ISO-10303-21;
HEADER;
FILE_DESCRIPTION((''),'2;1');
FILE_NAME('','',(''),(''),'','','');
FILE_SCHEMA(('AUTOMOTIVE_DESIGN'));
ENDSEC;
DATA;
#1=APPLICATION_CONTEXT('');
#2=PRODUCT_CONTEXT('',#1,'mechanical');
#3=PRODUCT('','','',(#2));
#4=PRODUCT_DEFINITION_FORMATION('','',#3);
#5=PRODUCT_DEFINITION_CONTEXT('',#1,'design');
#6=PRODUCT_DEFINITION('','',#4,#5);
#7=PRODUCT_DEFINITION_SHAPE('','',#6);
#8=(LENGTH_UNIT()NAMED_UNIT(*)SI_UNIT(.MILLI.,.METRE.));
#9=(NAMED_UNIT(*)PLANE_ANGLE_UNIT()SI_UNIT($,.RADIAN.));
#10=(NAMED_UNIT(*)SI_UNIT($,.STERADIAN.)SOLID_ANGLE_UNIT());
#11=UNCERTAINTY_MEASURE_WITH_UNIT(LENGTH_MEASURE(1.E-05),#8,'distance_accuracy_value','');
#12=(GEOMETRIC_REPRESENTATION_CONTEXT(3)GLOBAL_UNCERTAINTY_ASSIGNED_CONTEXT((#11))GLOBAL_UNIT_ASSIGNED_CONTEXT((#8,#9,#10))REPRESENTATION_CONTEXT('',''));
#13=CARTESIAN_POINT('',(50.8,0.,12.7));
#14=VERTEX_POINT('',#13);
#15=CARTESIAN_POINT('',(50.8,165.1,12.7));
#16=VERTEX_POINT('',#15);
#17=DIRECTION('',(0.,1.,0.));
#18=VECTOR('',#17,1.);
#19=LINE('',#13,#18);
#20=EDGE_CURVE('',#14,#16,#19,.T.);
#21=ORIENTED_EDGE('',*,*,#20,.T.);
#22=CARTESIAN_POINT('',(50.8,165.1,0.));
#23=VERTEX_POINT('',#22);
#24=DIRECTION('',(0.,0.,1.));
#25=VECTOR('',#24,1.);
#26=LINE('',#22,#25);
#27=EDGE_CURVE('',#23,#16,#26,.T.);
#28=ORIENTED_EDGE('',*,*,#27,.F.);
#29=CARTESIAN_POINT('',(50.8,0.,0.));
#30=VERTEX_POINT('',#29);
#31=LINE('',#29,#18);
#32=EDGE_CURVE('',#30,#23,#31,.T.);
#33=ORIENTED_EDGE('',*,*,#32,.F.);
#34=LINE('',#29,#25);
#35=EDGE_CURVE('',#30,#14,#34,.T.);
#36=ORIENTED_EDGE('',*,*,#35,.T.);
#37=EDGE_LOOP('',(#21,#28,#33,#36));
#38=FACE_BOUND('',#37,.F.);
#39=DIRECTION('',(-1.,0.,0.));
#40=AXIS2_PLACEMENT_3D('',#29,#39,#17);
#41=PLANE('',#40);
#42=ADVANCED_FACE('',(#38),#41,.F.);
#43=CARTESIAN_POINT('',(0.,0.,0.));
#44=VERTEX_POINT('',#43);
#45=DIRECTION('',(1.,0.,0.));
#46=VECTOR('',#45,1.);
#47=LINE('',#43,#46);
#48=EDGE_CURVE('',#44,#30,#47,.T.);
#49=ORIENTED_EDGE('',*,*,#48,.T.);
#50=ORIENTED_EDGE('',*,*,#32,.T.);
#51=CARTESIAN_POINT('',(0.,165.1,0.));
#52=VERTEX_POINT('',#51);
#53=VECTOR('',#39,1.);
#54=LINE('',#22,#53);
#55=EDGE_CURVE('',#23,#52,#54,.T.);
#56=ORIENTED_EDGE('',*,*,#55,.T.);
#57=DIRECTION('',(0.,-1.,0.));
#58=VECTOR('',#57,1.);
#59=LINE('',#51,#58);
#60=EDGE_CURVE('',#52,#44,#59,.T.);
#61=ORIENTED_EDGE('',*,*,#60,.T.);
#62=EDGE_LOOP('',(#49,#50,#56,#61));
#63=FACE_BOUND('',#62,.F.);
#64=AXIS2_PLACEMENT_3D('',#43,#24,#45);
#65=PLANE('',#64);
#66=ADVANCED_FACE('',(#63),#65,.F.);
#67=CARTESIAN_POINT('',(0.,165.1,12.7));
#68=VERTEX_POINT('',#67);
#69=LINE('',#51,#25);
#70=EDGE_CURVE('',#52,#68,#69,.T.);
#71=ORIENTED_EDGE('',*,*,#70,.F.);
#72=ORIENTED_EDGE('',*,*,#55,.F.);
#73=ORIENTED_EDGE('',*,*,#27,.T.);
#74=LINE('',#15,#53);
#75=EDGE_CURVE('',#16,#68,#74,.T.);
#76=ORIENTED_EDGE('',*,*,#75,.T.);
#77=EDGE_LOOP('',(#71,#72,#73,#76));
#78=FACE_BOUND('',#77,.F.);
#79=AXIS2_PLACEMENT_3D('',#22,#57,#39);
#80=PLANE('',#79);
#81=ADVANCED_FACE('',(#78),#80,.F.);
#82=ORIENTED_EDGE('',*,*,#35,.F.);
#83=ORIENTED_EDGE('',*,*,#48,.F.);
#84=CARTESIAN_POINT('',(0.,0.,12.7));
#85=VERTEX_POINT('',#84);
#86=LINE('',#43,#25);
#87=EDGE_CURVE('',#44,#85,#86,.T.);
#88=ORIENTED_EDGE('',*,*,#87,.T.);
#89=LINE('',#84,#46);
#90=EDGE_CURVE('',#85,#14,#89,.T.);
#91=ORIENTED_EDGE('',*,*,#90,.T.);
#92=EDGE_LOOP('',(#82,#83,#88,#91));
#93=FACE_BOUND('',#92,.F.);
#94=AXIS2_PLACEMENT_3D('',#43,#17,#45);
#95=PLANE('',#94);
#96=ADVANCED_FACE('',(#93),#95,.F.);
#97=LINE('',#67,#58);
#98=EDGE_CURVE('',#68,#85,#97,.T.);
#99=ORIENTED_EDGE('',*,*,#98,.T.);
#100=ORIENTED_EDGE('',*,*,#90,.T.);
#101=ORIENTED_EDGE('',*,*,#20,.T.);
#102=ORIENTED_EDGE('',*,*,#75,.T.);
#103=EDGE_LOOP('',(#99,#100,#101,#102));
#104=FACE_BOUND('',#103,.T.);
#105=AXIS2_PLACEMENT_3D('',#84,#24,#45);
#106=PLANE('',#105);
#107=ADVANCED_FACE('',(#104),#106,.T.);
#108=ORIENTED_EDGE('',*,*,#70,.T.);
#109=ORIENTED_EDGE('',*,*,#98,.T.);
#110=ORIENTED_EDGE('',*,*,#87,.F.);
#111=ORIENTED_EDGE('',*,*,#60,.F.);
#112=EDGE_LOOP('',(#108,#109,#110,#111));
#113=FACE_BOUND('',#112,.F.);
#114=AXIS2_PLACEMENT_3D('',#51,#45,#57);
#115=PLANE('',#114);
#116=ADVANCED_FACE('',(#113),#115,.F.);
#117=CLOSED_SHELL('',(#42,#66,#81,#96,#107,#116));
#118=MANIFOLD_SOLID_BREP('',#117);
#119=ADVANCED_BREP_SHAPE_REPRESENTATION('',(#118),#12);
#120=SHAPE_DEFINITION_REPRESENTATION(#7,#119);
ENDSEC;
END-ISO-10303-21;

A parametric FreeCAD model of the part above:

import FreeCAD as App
import Part
import Sketcher
from FreeCAD import Vector
Q = App.Units.Quantity

doc = App.newDocument("Part")
body = doc.addObject("PartDesign::Body", "Body")

# Sketch on XY plane
sketch1 = body.newObject("Sketcher::SketchObject", "Sketch")
sketch1.AttachmentSupport = (doc.getObject("XY_Plane"), [""])
sketch1.MapMode = "FlatFace"
sketch1.addGeometry(Part.LineSegment(Vector(0, 165.1, 0), Vector(0, 0, 0)), False)
sketch1.addGeometry(Part.LineSegment(Vector(0, 0, 0), Vector(50.8, 0, 0)), False)
sketch1.addGeometry(Part.LineSegment(Vector(50.8, 0, 0), Vector(50.8, 165.1, 0)), False)
sketch1.addGeometry(Part.LineSegment(Vector(50.8, 165.1, 0), Vector(0, 165.1, 0)), False)
sketch1.addConstraint(Sketcher.Constraint("Coincident", 0, 2, 1, 1))
sketch1.addConstraint(Sketcher.Constraint("Coincident", 1, 2, 2, 1))
sketch1.addConstraint(Sketcher.Constraint("Coincident", 2, 2, 3, 1))
sketch1.addConstraint(Sketcher.Constraint("Coincident", 3, 2, 0, 1))
sketch1.addConstraint(Sketcher.Constraint("Vertical", 0))
sketch1.addConstraint(Sketcher.Constraint("Horizontal", 1))
sketch1.addConstraint(Sketcher.Constraint("Vertical", 2))
sketch1.addConstraint(Sketcher.Constraint("Horizontal", 3))
sketch1.addConstraint(Sketcher.Constraint("Coincident", 0, 2, -1, 1))
sketch1.addConstraint(Sketcher.Constraint("DistanceX", 1, 1, 1, 2, Q("2 in")))
sketch1.addConstraint(Sketcher.Constraint("DistanceY", 0, 2, 0, 1, Q("6.5 in")))
pad1 = body.newObject("PartDesign::Pad", "Pad")
pad1.Profile = sketch1
pad1.Length = Q("0.5 in")

doc.recompute()
